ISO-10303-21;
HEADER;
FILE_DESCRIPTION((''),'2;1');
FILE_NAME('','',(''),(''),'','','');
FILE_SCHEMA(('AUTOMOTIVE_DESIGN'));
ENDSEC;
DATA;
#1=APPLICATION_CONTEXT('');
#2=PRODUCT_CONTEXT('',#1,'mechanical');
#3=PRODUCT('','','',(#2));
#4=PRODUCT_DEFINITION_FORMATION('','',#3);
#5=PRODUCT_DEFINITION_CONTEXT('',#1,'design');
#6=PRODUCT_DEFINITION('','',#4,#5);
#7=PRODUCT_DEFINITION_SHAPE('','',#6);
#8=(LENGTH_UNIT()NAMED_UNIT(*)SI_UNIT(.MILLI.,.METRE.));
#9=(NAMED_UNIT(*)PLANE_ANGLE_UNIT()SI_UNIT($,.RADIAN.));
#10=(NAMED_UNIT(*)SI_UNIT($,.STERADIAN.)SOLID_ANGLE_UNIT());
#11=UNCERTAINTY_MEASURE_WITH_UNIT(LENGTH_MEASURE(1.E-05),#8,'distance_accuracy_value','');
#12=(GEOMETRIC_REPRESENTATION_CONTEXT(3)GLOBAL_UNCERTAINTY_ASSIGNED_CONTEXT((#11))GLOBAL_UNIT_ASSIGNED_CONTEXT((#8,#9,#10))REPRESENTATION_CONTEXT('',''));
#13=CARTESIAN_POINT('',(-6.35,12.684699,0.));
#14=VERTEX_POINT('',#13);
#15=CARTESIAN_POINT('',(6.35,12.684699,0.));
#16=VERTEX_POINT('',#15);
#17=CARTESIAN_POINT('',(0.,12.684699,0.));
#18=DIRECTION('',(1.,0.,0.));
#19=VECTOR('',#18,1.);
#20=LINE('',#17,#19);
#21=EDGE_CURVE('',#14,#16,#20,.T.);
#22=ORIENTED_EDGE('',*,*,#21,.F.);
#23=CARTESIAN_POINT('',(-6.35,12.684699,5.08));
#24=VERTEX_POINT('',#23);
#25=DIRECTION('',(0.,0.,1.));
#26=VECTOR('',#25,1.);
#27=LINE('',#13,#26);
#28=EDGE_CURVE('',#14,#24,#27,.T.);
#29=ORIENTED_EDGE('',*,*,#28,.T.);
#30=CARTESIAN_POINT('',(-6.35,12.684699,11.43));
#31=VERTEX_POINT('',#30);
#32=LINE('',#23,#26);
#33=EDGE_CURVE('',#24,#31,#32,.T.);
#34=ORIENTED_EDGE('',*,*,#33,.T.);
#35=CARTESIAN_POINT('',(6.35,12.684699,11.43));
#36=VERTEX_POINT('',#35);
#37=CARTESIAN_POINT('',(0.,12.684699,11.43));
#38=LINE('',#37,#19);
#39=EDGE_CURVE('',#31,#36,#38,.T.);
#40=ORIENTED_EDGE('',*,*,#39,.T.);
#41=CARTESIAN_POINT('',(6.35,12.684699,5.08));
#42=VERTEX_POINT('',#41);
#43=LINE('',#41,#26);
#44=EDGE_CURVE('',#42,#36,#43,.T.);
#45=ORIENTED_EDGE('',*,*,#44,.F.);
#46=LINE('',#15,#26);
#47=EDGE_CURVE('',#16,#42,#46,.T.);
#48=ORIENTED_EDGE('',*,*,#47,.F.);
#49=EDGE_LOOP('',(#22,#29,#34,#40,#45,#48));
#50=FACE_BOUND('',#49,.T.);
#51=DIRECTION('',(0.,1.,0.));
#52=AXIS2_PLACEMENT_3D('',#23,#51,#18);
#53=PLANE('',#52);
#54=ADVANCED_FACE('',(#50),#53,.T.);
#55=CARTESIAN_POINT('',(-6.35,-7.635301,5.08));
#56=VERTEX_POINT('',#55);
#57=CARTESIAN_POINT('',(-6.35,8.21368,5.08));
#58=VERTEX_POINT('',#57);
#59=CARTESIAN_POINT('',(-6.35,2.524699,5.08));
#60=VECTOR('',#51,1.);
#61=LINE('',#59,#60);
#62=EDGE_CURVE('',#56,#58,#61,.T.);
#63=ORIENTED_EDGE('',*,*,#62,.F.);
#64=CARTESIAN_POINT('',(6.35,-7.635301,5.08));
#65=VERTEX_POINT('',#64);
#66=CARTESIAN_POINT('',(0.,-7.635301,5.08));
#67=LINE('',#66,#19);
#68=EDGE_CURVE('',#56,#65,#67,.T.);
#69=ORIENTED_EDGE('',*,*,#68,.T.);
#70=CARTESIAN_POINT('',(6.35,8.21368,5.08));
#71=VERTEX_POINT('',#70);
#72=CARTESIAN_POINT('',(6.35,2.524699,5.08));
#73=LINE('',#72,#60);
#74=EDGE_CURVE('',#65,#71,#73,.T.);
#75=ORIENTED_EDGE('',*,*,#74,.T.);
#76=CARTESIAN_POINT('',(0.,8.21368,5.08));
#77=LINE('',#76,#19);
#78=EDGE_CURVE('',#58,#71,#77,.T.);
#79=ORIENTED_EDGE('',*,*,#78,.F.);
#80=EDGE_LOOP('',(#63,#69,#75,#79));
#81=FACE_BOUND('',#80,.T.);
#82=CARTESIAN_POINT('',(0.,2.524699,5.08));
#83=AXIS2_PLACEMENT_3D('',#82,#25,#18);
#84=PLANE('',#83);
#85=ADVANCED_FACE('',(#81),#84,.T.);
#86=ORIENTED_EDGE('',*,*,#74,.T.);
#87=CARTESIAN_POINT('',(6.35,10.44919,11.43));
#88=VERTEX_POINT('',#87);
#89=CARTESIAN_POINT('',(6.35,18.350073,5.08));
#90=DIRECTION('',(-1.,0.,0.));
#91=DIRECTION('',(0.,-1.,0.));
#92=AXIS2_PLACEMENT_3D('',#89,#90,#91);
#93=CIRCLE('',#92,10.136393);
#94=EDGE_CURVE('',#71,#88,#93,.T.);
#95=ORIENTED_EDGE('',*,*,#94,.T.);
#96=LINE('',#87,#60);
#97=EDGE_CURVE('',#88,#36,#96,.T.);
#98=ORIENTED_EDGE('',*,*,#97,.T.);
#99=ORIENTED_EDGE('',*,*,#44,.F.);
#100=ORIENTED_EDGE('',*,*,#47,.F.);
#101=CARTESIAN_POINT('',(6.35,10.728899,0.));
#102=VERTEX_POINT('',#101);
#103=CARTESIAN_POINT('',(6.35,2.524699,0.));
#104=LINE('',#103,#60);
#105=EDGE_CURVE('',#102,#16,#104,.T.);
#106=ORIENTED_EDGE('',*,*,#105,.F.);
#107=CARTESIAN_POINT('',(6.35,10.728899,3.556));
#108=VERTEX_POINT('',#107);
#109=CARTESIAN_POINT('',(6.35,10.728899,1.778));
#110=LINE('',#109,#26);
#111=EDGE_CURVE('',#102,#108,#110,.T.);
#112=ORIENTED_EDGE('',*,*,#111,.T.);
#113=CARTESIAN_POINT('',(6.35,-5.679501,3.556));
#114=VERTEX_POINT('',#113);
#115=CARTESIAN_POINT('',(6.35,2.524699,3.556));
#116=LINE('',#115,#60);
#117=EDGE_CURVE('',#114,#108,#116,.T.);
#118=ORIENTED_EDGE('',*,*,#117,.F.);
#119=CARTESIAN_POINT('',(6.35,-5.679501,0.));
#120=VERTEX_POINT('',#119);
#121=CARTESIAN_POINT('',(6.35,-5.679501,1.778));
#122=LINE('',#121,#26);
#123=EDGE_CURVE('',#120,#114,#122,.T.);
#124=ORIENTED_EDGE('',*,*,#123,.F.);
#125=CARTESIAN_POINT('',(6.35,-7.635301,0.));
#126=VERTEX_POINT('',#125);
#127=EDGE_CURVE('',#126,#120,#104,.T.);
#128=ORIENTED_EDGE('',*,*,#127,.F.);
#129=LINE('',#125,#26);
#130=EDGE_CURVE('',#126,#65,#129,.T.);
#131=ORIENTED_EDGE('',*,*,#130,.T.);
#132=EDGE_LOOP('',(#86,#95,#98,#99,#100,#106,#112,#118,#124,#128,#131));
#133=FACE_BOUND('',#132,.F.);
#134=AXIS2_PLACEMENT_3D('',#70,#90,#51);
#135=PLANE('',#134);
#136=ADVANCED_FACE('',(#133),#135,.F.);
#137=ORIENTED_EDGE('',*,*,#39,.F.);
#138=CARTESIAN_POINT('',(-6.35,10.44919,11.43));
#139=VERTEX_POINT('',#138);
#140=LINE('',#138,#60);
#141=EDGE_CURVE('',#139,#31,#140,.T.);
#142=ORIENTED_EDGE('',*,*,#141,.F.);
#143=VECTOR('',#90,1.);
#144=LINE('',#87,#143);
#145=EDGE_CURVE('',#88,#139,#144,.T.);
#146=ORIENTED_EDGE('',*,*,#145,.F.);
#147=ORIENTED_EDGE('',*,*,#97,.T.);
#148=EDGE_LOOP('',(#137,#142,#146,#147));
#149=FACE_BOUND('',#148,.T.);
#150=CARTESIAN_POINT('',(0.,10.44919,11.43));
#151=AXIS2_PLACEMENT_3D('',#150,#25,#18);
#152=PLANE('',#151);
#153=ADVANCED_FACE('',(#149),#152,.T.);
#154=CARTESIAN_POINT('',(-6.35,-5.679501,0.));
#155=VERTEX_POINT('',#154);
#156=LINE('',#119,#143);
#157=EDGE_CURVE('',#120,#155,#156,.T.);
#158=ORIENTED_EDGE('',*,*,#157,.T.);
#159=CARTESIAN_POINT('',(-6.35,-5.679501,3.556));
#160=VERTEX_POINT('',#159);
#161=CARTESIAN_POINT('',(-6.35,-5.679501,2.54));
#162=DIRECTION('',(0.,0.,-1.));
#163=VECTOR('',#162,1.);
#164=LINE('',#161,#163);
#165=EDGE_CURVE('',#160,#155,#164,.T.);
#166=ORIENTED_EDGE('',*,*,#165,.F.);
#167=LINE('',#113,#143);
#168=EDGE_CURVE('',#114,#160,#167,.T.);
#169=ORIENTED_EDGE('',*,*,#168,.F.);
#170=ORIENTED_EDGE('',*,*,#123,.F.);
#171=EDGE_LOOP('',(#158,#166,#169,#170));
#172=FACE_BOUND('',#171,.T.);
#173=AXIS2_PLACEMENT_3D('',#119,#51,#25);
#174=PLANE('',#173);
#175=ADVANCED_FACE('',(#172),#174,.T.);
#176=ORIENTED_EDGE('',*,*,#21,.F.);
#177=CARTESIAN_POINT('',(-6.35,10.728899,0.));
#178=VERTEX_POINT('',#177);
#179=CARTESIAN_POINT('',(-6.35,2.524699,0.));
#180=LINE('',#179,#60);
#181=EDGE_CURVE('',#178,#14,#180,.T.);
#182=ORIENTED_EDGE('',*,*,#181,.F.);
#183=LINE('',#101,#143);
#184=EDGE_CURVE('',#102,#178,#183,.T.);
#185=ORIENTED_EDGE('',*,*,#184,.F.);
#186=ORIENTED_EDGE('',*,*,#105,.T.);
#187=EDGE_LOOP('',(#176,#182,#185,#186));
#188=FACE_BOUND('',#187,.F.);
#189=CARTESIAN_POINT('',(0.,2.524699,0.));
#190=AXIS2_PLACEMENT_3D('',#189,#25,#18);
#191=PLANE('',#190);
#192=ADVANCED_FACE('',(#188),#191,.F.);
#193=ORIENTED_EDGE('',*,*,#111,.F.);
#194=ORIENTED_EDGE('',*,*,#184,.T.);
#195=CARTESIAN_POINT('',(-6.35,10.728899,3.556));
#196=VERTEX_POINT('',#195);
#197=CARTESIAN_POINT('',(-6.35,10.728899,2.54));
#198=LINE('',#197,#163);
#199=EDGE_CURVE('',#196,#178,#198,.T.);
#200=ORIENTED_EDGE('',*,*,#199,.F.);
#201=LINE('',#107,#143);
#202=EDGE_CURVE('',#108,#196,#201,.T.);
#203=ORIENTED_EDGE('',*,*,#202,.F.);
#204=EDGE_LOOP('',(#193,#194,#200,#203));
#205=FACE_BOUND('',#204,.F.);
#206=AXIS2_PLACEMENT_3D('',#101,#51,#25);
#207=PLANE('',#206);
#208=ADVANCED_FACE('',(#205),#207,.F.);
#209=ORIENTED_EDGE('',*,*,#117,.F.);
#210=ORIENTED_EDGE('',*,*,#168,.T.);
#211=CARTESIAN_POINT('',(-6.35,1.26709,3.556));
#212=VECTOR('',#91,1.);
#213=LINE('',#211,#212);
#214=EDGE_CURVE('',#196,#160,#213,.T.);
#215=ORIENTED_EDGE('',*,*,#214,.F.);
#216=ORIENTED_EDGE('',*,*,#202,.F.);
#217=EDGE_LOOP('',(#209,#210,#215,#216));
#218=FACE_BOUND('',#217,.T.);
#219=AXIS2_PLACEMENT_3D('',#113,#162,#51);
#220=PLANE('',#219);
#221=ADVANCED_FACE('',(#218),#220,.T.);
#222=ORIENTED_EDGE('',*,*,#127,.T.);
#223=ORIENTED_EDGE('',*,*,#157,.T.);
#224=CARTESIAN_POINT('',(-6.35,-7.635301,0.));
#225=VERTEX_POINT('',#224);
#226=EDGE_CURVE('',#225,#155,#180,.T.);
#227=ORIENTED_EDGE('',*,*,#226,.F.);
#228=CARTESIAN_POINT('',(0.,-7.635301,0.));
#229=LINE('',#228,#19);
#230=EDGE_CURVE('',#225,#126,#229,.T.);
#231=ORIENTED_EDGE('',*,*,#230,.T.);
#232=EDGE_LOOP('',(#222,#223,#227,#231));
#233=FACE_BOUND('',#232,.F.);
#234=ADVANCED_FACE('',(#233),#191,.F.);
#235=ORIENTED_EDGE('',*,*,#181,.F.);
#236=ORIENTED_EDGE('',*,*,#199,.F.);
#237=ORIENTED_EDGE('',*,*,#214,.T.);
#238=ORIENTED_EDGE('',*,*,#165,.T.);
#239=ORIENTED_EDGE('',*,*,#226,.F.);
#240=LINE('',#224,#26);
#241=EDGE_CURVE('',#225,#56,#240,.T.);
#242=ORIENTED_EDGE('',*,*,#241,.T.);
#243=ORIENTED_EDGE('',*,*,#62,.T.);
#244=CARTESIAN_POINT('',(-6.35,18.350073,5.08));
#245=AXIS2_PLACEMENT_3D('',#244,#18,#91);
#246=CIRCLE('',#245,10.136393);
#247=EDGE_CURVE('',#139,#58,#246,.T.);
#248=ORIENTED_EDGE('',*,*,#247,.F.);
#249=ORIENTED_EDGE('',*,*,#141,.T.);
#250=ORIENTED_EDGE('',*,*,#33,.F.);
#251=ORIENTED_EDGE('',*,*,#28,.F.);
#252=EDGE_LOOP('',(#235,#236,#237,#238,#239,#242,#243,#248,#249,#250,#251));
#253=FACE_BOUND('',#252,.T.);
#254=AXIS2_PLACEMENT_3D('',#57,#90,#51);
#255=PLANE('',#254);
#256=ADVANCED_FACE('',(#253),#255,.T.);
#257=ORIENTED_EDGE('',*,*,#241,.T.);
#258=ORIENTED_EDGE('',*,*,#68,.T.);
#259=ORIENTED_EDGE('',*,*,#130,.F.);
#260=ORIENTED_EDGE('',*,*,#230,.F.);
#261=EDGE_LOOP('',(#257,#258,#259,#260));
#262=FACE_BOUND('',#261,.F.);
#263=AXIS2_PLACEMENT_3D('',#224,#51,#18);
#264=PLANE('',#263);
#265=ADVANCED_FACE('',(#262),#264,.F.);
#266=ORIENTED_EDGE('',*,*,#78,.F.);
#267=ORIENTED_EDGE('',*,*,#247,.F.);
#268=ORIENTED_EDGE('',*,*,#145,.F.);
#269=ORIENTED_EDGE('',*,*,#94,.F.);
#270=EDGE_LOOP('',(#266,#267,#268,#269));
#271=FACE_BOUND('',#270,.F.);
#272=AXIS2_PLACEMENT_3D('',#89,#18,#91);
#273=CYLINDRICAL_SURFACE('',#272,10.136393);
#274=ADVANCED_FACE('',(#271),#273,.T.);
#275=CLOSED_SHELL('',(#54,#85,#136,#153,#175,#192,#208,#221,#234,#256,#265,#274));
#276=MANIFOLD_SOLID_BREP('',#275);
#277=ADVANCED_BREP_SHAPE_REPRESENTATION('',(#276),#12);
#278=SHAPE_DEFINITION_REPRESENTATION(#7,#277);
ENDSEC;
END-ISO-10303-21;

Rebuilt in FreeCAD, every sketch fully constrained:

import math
import FreeCAD as App
import Part
import Sketcher
from FreeCAD import Vector
Q = App.Units.Quantity

doc = App.newDocument("Part")
body = doc.addObject("PartDesign::Body", "Body")

# Sketch on XY plane
sketch1 = body.newObject("Sketcher::SketchObject", "Sketch")
sketch1.AttachmentSupport = (doc.getObject("XY_Plane"), [""])
sketch1.MapMode = "FlatFace"
sketch1.addGeometry([
    Part.LineSegment(Vector(-6, 13, 0), Vector(-6, -8, 0)),
    Part.LineSegment(Vector(-6, -8, 0), Vector(6, -8, 0)),
    Part.LineSegment(Vector(6, -8, 0), Vector(6, 13, 0)),
    Part.LineSegment(Vector(6, 13, 0), Vector(-6, 13, 0)),
], False)
sketch1.addConstraint([
    Sketcher.Constraint("Coincident", 0, 2, 1, 1),
    Sketcher.Constraint("Coincident", 1, 2, 2, 1),
    Sketcher.Constraint("Coincident", 2, 2, 3, 1),
    Sketcher.Constraint("Coincident", 3, 2, 0, 1),
    Sketcher.Constraint("Vertical", 0),
    Sketcher.Constraint("Horizontal", 1),
    Sketcher.Constraint("Vertical", 2),
    Sketcher.Constraint("Horizontal", 3),
    Sketcher.Constraint("DistanceX", 1, 1, 1, 2, Q("0.5 in")),
    Sketcher.Constraint("DistanceY", 0, 2, 0, 1, Q("0.8 in")),
    Sketcher.Constraint("DistanceX", 0, 2, -1, 1, Q("0.25 in")),
    Sketcher.Constraint("DistanceY", 0, 2, -1, 1, Q("7.635301 mm")),
])
pad1 = body.newObject("PartDesign::Pad", "Pad")
pad1.Profile = sketch1
pad1.Length = Q("0.2 in")

# Sketch on XY plane
sketch2 = body.newObject("Sketcher::SketchObject", "Sketch001")
sketch2.AttachmentSupport = (doc.getObject("XY_Plane"), [""])
sketch2.MapMode = "FlatFace"
sketch2.AttachmentOffset = App.Placement(Vector(0, 0, 0.2 * 25.4), App.Rotation())
sketch2.addGeometry([
    Part.LineSegment(Vector(-6.3, 12.7, 0), Vector(-6.3, 8.2, 0)),
    Part.LineSegment(Vector(-6.3, 8.2, 0), Vector(6.3, 8.2, 0)),
    Part.LineSegment(Vector(6.3, 8.2, 0), Vector(6.3, 12.7, 0)),
    Part.LineSegment(Vector(6.3, 12.7, 0), Vector(-6.3, 12.7, 0)),
], False)
sketch2.addConstraint([
    Sketcher.Constraint("Coincident", 0, 2, 1, 1),
    Sketcher.Constraint("Coincident", 1, 2, 2, 1),
    Sketcher.Constraint("Coincident", 2, 2, 3, 1),
    Sketcher.Constraint("Coincident", 3, 2, 0, 1),
    Sketcher.Constraint("Vertical", 0),
    Sketcher.Constraint("Horizontal", 1),
    Sketcher.Constraint("Vertical", 2),
    Sketcher.Constraint("Horizontal", 3),
    Sketcher.Constraint("DistanceX", 1, 1, 1, 2, Q("0.5 in")),
    Sketcher.Constraint("DistanceX", 0, 2, -1, 1, Q("0.25 in")),
    Sketcher.Constraint("DistanceY", 0, 2, 0, 1, Q("4.471019 mm")),
    Sketcher.Constraint("DistanceY", -1, 1, 2, 2, Q("12.684699 mm")),
])
pad2 = body.newObject("PartDesign::Pad", "Pad001")
pad2.Profile = sketch2
pad2.Length = Q("0.25 in")

# Sketch on YZ plane
sketch3 = body.newObject("Sketcher::SketchObject", "Sketch002")
sketch3.AttachmentSupport = (doc.getObject("YZ_Plane"), [""])
sketch3.MapMode = "FlatFace"
sketch3.AttachmentOffset = App.Placement(Vector(0, 0, 0.25 * 25.4), App.Rotation())
sketch3.addGeometry([
    Part.ArcOfCircle(Part.Circle(Vector(18.4, 5.1, 0), Vector(0, 0, 1), 10.1), math.radians(141), math.radians(180)),
    Part.LineSegment(Vector(10.4, 11.4, 0), Vector(8.2, 11.4, 0)),
    Part.LineSegment(Vector(8.2, 11.4, 0), Vector(8.2, 5.1, 0)),
], False)
sketch3.addConstraint([
    Sketcher.Constraint("Coincident", 0, 1, 1, 1),
    Sketcher.Constraint("Coincident", 1, 2, 2, 1),
    Sketcher.Constraint("Tangent", 2, 2, 0, 2),
    Sketcher.Constraint("Horizontal", 1),
    Sketcher.Constraint("Vertical", 2),
    Sketcher.Constraint("DistanceY", 2, 2, 2, 1, Q("0.25 in")),
    Sketcher.Constraint("DistanceY", -1, 1, 0, 3, Q("0.2 in")),
    Sketcher.Constraint("Radius", 0, Q("10.136393 mm")),
    Sketcher.Constraint("DistanceX", -1, 1, 0, 1, Q("10.44919 mm")),
])
pocket1 = body.newObject("PartDesign::Pocket", "Pocket")
pocket1.Profile = sketch3
pocket1.Length = Q("1 in")

# Sketch on YZ plane
sketch4 = body.newObject("Sketcher::SketchObject", "Sketch003")
sketch4.AttachmentSupport = (doc.getObject("YZ_Plane"), [""])
sketch4.MapMode = "FlatFace"
sketch4.AttachmentOffset = App.Placement(Vector(0, 0, 0.25 * 25.4), App.Rotation())
sketch4.addGeometry([
    Part.LineSegment(Vector(-5.7, 3.6, 0), Vector(-5.7, 0, 0)),
    Part.LineSegment(Vector(-5.7, 0, 0), Vector(10.7, 0, 0)),
    Part.LineSegment(Vector(10.7, 0, 0), Vector(10.7, 3.6, 0)),
    Part.LineSegment(Vector(10.7, 3.6, 0), Vector(-5.7, 3.6, 0)),
], False)
sketch4.addConstraint([
    Sketcher.Constraint("Coincident", 0, 2, 1, 1),
    Sketcher.Constraint("Coincident", 1, 2, 2, 1),
    Sketcher.Constraint("Coincident", 2, 2, 3, 1),
    Sketcher.Constraint("Coincident", 3, 2, 0, 1),
    Sketcher.Constraint("Vertical", 0),
    Sketcher.Constraint("Horizontal", 1),
    Sketcher.Constraint("Vertical", 2),
    Sketcher.Constraint("Horizontal", 3),
    Sketcher.Constraint("PointOnObject", 0, 2, -1),
    Sketcher.Constraint("DistanceY", 0, 2, 0, 1, Q("0.14 in")),
    Sketcher.Constraint("DistanceX", 1, 1, 1, 2, Q("0.646 in")),
    Sketcher.Constraint("DistanceX", 0, 2, -1, 1, Q("5.679501 mm")),
])
pocket2 = body.newObject("PartDesign::Pocket", "Pocket001")
pocket2.Profile = sketch4
pocket2.Length = Q("1 in")

doc.recompute()
